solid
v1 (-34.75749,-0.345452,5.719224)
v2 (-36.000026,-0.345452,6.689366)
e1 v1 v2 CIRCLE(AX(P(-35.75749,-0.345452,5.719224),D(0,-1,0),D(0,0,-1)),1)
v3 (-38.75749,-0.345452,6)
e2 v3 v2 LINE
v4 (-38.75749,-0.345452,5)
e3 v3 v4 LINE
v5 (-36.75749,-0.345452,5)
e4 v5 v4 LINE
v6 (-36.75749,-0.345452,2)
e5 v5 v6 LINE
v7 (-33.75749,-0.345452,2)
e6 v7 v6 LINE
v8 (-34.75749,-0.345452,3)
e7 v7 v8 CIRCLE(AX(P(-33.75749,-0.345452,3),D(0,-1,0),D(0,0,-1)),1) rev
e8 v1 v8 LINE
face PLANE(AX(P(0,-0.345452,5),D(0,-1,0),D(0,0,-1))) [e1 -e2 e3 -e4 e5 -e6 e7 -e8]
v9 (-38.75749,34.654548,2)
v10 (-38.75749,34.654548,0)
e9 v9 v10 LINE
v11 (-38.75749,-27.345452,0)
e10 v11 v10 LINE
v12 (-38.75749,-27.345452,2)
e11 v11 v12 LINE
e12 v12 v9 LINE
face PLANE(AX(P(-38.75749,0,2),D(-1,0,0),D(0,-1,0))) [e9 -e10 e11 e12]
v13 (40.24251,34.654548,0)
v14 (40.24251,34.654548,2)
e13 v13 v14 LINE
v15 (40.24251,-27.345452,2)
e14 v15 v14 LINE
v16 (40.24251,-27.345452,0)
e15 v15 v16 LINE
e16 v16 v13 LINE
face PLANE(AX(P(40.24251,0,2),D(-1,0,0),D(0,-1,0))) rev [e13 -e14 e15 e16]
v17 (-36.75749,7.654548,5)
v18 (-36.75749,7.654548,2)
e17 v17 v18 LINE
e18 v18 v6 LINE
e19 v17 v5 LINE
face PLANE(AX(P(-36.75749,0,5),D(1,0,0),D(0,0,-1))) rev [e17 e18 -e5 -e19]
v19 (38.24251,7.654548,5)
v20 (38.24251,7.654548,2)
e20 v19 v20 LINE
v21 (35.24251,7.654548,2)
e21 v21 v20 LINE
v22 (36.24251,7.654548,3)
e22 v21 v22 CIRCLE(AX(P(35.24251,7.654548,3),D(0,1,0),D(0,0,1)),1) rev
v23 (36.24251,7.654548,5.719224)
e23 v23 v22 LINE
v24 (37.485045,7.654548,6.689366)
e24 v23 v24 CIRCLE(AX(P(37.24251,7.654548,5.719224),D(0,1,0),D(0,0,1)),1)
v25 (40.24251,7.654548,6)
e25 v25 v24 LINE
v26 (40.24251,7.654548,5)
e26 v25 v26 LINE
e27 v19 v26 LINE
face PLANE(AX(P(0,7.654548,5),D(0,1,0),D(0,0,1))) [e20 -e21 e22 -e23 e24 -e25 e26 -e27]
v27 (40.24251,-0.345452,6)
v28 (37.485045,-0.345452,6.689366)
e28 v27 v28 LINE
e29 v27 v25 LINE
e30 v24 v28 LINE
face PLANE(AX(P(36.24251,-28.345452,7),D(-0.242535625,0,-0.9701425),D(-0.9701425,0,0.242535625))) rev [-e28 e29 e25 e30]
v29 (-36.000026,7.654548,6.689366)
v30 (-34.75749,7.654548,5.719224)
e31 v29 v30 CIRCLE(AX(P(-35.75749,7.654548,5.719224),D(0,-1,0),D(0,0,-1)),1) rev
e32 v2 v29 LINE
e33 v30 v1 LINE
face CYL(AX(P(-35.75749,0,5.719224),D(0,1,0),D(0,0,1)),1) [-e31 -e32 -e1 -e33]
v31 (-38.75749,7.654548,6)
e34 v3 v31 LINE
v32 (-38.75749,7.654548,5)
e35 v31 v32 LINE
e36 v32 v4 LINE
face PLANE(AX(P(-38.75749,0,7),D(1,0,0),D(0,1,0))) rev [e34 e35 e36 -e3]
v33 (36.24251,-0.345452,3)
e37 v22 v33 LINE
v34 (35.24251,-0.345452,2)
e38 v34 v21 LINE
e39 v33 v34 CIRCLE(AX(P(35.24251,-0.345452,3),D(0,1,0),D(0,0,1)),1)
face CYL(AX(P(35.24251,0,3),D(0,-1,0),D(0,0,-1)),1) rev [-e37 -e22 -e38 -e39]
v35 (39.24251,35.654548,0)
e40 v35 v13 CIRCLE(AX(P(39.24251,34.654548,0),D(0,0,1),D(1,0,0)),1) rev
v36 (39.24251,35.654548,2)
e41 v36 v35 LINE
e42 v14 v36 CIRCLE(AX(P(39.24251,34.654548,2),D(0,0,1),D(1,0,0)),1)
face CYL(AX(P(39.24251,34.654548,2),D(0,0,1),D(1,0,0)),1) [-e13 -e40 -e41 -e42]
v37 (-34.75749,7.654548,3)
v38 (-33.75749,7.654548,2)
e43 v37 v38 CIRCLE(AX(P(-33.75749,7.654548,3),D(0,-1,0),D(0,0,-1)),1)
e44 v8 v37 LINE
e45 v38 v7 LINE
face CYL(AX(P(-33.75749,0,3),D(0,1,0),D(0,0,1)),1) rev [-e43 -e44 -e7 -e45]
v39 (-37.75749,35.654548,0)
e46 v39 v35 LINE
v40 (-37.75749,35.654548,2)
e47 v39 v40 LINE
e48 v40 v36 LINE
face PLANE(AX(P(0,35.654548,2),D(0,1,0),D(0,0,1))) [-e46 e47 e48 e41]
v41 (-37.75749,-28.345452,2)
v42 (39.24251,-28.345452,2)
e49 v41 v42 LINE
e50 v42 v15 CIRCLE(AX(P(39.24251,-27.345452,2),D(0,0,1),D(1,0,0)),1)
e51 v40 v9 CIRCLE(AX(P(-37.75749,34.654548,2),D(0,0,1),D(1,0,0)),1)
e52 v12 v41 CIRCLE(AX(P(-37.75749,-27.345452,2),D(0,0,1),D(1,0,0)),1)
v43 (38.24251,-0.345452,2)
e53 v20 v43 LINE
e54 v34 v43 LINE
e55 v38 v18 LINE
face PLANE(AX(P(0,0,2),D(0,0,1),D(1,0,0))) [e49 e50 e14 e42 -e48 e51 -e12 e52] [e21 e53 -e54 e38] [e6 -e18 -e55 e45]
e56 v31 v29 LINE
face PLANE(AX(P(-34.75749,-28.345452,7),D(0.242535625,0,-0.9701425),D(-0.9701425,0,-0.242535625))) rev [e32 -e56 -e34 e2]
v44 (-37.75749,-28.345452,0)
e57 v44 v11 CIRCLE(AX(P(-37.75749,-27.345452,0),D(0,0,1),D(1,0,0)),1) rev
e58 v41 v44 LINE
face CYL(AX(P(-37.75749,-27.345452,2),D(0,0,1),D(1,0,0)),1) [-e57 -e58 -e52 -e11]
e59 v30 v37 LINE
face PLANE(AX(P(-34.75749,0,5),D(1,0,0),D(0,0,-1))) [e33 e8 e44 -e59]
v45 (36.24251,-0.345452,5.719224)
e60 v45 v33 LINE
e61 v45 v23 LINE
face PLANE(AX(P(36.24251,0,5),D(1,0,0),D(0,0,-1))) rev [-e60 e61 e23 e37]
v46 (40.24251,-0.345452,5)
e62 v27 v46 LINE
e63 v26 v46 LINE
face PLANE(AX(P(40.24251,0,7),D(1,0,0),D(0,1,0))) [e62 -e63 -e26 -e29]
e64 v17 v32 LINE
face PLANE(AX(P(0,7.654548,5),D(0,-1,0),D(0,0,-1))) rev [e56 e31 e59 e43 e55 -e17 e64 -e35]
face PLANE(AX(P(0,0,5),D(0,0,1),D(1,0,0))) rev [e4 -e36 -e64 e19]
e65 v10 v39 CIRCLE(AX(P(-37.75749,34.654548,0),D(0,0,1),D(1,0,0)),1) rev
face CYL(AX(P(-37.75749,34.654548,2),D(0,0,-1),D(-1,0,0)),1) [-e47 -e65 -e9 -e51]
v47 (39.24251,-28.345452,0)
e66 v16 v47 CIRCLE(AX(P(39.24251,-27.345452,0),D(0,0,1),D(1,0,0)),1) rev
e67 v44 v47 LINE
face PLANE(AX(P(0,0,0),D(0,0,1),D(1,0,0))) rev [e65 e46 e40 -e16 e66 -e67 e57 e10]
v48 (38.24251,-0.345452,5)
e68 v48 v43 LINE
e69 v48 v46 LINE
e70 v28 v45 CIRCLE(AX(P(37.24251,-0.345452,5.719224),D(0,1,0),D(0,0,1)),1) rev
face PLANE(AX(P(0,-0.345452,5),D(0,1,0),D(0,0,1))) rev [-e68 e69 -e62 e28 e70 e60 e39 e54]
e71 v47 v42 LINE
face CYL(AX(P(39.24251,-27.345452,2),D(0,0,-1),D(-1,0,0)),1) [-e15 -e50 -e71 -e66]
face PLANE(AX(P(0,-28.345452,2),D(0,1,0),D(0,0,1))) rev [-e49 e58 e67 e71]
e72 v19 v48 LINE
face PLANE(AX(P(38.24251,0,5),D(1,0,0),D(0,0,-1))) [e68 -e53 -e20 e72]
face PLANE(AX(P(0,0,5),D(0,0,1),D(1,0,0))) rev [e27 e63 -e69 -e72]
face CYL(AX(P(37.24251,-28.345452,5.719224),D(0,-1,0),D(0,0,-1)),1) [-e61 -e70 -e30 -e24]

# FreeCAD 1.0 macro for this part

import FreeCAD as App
import Part
import Sketcher
from FreeCAD import Vector
Q = App.Units.Quantity


def edges_at(feature, points):
    """Names of the edges that pass closest to the given points."""
    edges = feature.Shape.Edges
    near = lambda p: min(range(len(edges)), key=lambda i: edges[i].distToShape(Part.Vertex(*p))[0])
    return sorted({f"Edge{near(p) + 1}" for p in points})


def add_polygon(sketch, points):
    """Adds a closed chain of lines whose ends are joined by coincident constraints."""
    first, n = sketch.GeometryCount, len(points)
    for a, b in zip(points, points[1:] + points[:1]):
        sketch.addGeometry(Part.LineSegment(App.Vector(*a, 0), App.Vector(*b, 0)), False)
    for i in range(n):
        sketch.addConstraint(Sketcher.Constraint("Coincident", first + i, 2, first + (i + 1) % n, 1))

doc = App.newDocument("Part")
body = doc.addObject("PartDesign::Body", "Body")

sketch1 = body.newObject("Sketcher::SketchObject", "Sketch")
sketch1.AttachmentSupport = (doc.getObject("XY_Plane"), [""])
sketch1.MapMode = "FlatFace"
add_polygon(sketch1, [(-38.75749, -28.345452), (40.24251, -28.345452), (40.24251, 35.654548), (-38.75749, 35.654548)])
sketch1.addConstraint([
    Sketcher.Constraint("Horizontal", 0),
    Sketcher.Constraint("Vertical", 1),
    Sketcher.Constraint("Horizontal", 2),
    Sketcher.Constraint("Vertical", 3),
    Sketcher.Constraint("DistanceX", 0, 1, 0, 2, Q("79 mm")),
    Sketcher.Constraint("DistanceY", 1, 1, 1, 2, Q("64 mm")),
    Sketcher.Constraint("DistanceX", -1, 1, 0, 2, Q("40.24251 mm")),
    Sketcher.Constraint("DistanceY", 0, 2, -1, 1, Q("28.345452 mm")),
])
pad1 = body.newObject("PartDesign::Pad", "Pad")
pad1.Profile = sketch1
pad1.Length = 2

sketch2 = body.newObject("Sketcher::SketchObject", "Sketch001")
sketch2.AttachmentSupport = (doc.getObject("XY_Plane"), [""])
sketch2.MapMode = "FlatFace"
sketch2.AttachmentOffset = App.Placement(Vector(0, 0, 2), App.Rotation())
add_polygon(sketch2, [(-36.75749, 7.654548), (-36.75749, -0.345452), (-34.75749, -0.345452), (-34.75749, 7.654548)])
add_polygon(sketch2, [(36.24251, 7.654548), (36.24251, -0.345452), (38.24251, -0.345452), (38.24251, 7.654548)])
sketch2.addConstraint([
    Sketcher.Constraint("Vertical", 0),
    Sketcher.Constraint("Horizontal", 1),
    Sketcher.Constraint("Vertical", 2),
    Sketcher.Constraint("Horizontal", 3),
    Sketcher.Constraint("Vertical", 4),
    Sketcher.Constraint("Horizontal", 5),
    Sketcher.Constraint("Vertical", 6),
    Sketcher.Constraint("Horizontal", 7),
    Sketcher.Constraint("Horizontal", 1, 2, 4, 2),
    Sketcher.Constraint("Horizontal", 3, 2, 6, 2),
    Sketcher.Constraint("Equal", 3, 5),
    Sketcher.Constraint("DistanceX", 1, 1, 1, 2, Q("2 mm")),
    Sketcher.Constraint("DistanceY", 0, 2, 0, 1, Q("8 mm")),
    Sketcher.Constraint("DistanceX", 1, 2, 4, 2, Q("71 mm")),
    Sketcher.Constraint("DistanceX", 0, 2, -1, 1, Q("36.75749 mm")),
    Sketcher.Constraint("DistanceY", 0, 2, -1, 1, Q("0.345452 mm")),
])
pad2 = body.newObject("PartDesign::Pad", "Pad001")
pad2.Profile = sketch2
pad2.Length = 3

sketch3 = body.newObject("Sketcher::SketchObject", "Sketch002")
sketch3.AttachmentSupport = (doc.getObject("XY_Plane"), [""])
sketch3.MapMode = "FlatFace"
sketch3.AttachmentOffset = App.Placement(Vector(0, 0, 5), App.Rotation())
add_polygon(sketch3, [(-38.75749, 7.654548), (-38.75749, -0.345452), (-34.75749, -0.345452), (-34.75749, 7.654548)])
add_polygon(sketch3, [(36.24251, 7.654548), (36.24251, -0.345452), (40.24251, -0.345452), (40.24251, 7.654548)])
sketch3.addConstraint([
    Sketcher.Constraint("Vertical", 0),
    Sketcher.Constraint("Horizontal", 1),
    Sketcher.Constraint("Vertical", 2),
    Sketcher.Constraint("Horizontal", 3),
    Sketcher.Constraint("Vertical", 4),
    Sketcher.Constraint("Horizontal", 5),
    Sketcher.Constraint("Vertical", 6),
    Sketcher.Constraint("Horizontal", 7),
    Sketcher.Constraint("Horizontal", 1, 2, 4, 2),
    Sketcher.Constraint("Horizontal", 3, 2, 6, 2),
    Sketcher.Constraint("Equal", 3, 5),
    Sketcher.Constraint("DistanceX", 1, 1, 1, 2, Q("4 mm")),
    Sketcher.Constraint("DistanceY", 0, 2, 0, 1, Q("8 mm")),
    Sketcher.Constraint("DistanceX", 1, 2, 4, 2, Q("71 mm")),
    Sketcher.Constraint("DistanceX", 0, 2, -1, 1, Q("38.75749 mm")),
    Sketcher.Constraint("DistanceY", 0, 2, -1, 1, Q("0.345452 mm")),
])
pad3 = body.newObject("PartDesign::Pad", "Pad002")
pad3.Profile = sketch3
pad3.Length = 2

sketch4 = body.newObject("Sketcher::SketchObject", "Sketch003")
sketch4.AttachmentSupport = (doc.getObject("XZ_Plane"), [""])
sketch4.MapMode = "FlatFace"
add_polygon(sketch4, [(-34.75749, 7), (-38.75749, 6), (-38.75749, 7)])
add_polygon(sketch4, [(40.24251, 6), (36.24251, 7), (40.24251, 7)])
sketch4.addConstraint([
    Sketcher.Constraint("Vertical", 1),
    Sketcher.Constraint("Horizontal", 2),
    Sketcher.Constraint("Horizontal", 4),
    Sketcher.Constraint("Vertical", 5),
    Sketcher.Constraint("Horizontal", 2, 2, 3, 2),
    Sketcher.Constraint("Horizontal", 0, 2, 5, 2),
    Sketcher.Constraint("Equal", 2, 4),
    Sketcher.Constraint("DistanceX", 2, 1, 2, 2, Q("4 mm")),
    Sketcher.Constraint("DistanceY", 1, 1, 1, 2, Q("1 mm")),
    Sketcher.Constraint("DistanceY", -1, 1, 0, 2, Q("6 mm")),
    Sketcher.Constraint("DistanceX", 2, 2, 3, 2, Q("71 mm")),
    Sketcher.Constraint("DistanceX", 0, 2, -1, 1, Q("38.75749 mm")),
])
pocket1 = body.newObject("PartDesign::Pocket", "Pocket")
pocket1.Profile = sketch4
pocket1.Type = "ThroughAll"
pocket1.Midplane = True
doc.recompute()

fillet = body.newObject("PartDesign::Fillet", "Fillet")
fillet.Base = (pocket1, edges_at(pocket1, [
    (40.243, -28.345, 1),
    (-38.757, -28.345, 1),
    (-38.757, 35.655, 1),
    (40.243, 35.655, 1),
]))
fillet.Radius = 1
doc.recompute()

fillet2 = body.newObject("PartDesign::Fillet", "Fillet001")
fillet2.Base = (fillet, edges_at(fillet, [
    (-34.757, 3.655, 2),
    (36.243, 3.655, 2),
    (-34.757, 3.655, 7),
    (36.243, 3.655, 7),
]))
fillet2.Radius = 1

doc.recompute()
